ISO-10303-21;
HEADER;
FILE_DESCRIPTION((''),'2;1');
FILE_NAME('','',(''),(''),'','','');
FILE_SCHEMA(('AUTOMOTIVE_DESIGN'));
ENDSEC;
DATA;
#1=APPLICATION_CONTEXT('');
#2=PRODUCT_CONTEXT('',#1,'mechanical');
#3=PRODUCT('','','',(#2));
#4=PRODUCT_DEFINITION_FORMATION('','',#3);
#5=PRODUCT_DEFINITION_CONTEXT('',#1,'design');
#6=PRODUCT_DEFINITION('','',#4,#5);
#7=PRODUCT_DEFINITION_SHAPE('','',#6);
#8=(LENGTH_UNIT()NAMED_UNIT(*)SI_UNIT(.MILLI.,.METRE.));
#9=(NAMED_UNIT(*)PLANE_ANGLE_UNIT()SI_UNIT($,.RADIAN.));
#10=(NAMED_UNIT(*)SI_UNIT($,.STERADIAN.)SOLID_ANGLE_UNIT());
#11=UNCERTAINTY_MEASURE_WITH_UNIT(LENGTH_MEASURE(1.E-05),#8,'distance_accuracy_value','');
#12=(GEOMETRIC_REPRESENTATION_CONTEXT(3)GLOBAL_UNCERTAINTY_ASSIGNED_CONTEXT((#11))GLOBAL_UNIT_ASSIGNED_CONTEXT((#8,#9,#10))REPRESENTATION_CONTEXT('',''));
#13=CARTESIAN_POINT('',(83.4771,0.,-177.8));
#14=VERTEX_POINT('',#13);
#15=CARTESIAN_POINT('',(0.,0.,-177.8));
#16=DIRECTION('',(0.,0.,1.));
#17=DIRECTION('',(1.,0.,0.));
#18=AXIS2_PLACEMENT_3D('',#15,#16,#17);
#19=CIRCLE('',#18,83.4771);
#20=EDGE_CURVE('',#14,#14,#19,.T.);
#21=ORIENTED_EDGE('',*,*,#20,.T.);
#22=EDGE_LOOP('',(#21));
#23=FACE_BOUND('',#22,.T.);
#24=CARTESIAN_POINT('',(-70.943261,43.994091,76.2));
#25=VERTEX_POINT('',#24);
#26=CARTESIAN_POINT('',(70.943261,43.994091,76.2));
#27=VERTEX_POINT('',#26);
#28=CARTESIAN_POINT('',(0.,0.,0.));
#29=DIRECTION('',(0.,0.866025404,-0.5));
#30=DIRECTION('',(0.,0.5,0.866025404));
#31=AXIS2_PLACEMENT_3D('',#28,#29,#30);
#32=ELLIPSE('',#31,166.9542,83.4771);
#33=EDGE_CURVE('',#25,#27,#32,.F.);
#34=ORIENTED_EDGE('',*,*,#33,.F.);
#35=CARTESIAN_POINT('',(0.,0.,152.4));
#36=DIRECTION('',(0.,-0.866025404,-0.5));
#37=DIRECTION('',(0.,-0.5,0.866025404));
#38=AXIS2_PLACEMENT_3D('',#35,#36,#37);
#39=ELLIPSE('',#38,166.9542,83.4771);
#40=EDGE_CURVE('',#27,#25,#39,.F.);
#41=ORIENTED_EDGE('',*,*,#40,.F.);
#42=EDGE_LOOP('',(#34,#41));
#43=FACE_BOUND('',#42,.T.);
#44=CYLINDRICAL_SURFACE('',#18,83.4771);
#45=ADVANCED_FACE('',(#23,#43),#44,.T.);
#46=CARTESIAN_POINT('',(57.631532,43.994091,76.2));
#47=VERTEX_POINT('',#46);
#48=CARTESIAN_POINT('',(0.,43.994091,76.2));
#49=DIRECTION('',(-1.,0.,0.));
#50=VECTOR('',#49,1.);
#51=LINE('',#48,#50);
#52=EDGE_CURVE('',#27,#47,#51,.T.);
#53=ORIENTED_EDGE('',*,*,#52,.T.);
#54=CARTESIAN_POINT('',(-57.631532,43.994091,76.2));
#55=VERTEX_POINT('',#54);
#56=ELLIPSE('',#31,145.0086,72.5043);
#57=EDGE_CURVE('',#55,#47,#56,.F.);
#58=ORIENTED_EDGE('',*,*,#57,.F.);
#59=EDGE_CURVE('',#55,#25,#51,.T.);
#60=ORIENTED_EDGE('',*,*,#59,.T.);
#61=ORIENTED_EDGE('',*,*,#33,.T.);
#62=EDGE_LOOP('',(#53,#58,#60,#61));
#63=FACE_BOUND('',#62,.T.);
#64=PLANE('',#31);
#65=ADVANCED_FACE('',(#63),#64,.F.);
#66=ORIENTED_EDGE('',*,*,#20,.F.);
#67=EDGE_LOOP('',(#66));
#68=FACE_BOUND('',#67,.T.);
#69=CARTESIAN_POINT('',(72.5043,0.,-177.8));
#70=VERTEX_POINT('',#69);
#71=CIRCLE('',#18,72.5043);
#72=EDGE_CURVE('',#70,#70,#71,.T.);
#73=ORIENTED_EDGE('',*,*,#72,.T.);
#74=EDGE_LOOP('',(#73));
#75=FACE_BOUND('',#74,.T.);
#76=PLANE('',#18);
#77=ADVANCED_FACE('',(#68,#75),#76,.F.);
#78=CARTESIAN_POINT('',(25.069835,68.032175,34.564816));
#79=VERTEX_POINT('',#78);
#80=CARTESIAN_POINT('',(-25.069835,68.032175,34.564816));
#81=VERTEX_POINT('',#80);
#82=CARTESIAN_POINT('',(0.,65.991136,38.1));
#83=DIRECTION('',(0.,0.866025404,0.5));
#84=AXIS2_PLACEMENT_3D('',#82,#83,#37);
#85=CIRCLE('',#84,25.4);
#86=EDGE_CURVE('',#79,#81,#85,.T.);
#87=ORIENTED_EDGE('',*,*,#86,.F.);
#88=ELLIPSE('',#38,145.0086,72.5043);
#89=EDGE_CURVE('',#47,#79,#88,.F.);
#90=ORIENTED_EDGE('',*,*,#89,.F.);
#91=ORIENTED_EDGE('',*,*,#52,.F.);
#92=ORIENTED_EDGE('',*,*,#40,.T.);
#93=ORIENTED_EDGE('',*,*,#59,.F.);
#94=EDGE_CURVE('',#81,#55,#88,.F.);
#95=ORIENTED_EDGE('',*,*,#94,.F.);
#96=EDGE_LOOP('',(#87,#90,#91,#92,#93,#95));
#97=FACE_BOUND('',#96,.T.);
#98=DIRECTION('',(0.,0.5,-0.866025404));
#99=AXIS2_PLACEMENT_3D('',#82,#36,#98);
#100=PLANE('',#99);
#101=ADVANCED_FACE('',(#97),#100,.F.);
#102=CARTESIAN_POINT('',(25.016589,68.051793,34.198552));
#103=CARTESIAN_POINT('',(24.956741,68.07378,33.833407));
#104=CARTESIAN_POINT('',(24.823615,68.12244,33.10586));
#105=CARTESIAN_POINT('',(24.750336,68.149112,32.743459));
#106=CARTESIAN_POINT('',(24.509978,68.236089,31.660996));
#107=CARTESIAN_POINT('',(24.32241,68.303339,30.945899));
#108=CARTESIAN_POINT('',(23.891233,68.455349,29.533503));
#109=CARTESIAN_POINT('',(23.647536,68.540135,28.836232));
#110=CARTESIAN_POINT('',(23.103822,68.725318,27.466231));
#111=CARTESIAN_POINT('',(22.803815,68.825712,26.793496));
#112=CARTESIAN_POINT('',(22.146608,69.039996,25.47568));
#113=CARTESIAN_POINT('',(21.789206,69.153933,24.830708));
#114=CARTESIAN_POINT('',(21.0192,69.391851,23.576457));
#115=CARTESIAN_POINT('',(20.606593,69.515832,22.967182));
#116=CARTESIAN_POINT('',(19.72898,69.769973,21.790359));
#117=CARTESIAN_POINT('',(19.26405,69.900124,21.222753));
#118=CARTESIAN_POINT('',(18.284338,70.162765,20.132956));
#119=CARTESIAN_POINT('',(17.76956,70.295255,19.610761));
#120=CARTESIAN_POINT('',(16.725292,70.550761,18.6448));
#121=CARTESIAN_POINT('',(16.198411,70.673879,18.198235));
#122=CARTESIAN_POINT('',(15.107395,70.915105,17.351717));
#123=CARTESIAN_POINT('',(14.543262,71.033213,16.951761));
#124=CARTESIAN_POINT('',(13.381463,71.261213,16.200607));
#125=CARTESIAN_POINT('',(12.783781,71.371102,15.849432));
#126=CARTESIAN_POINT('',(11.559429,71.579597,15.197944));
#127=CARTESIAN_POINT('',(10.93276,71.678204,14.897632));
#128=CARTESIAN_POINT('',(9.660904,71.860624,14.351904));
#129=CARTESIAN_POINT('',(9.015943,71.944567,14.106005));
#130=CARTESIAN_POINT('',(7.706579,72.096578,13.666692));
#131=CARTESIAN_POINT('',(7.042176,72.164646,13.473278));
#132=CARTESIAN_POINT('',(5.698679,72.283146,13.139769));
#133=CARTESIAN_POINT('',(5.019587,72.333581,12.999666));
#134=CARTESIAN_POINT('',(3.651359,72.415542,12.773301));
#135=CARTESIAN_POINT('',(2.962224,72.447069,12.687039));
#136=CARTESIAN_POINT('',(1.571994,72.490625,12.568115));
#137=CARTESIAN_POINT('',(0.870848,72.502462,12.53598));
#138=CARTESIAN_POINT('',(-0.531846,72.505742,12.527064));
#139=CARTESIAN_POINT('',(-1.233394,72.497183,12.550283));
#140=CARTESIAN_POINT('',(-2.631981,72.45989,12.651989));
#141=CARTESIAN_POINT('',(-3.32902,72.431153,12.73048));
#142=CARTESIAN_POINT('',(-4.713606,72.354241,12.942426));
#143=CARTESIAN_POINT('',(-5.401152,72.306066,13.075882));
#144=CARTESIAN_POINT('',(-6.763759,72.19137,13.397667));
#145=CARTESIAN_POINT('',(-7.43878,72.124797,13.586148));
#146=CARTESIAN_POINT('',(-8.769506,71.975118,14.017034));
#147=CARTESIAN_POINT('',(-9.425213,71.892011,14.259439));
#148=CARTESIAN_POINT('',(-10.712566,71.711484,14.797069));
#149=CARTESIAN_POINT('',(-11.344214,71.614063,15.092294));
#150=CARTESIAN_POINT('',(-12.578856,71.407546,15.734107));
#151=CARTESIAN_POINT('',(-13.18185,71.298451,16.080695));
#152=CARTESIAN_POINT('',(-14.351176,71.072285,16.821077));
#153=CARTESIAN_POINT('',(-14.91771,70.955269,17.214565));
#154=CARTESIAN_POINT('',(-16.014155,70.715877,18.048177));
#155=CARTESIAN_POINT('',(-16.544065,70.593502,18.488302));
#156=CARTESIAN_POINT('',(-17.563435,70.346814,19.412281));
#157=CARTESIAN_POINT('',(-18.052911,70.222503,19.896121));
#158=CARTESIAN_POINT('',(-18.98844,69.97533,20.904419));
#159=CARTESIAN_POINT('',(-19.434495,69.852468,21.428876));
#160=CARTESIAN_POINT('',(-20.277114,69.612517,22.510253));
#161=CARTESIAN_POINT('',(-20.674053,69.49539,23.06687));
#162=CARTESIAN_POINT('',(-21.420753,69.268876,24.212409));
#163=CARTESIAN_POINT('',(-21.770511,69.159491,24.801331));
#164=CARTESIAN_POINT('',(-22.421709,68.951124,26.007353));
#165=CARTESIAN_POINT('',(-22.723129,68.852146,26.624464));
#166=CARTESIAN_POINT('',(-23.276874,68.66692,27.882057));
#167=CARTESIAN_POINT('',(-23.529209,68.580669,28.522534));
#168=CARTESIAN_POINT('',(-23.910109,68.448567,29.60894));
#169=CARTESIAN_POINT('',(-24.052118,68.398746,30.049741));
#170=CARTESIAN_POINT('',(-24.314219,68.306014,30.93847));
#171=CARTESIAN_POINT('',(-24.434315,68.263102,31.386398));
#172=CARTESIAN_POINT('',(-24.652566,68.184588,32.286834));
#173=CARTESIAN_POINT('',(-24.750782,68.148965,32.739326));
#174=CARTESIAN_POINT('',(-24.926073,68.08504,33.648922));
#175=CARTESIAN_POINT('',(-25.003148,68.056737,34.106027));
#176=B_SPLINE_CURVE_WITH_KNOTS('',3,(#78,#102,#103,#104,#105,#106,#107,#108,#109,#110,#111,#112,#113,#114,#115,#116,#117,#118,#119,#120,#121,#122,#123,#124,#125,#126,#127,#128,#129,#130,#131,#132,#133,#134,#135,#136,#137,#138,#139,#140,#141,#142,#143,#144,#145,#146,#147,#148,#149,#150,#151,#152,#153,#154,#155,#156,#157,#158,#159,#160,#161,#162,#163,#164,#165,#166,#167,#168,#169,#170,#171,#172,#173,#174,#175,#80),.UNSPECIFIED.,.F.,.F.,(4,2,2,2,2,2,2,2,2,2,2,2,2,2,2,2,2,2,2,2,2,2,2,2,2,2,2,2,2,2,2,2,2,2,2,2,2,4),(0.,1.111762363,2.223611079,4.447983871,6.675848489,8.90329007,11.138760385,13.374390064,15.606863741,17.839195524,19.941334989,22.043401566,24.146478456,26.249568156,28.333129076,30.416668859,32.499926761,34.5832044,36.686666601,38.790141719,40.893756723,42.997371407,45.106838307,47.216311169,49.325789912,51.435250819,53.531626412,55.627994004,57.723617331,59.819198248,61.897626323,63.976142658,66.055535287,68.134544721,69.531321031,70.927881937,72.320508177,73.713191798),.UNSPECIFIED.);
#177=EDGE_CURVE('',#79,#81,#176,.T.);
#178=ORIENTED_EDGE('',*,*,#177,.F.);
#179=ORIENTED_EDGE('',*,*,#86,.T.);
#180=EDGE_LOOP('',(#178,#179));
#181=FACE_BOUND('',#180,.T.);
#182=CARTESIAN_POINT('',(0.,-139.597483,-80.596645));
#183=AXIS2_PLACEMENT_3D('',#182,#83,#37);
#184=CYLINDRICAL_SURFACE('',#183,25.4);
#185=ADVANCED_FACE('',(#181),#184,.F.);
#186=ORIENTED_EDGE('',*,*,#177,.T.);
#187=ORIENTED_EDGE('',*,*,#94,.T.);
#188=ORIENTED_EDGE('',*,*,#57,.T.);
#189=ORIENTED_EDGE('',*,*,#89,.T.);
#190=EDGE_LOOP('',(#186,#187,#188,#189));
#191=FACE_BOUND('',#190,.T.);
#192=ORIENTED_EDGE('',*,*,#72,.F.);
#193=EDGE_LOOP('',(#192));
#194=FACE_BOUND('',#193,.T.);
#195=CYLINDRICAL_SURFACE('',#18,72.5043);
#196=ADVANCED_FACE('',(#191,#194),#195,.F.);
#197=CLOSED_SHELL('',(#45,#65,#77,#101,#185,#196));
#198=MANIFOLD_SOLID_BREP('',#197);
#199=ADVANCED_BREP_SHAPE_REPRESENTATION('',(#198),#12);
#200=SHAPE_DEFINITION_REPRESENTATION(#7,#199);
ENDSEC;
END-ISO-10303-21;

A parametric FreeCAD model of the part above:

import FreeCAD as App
import Part
import Sketcher

V = App.Vector
Q = App.Units.Quantity

doc = App.newDocument("Part")
body = doc.addObject("PartDesign::Body", "Body")

sketch1 = body.newObject("Sketcher::SketchObject", "Sketch")
sketch1.AttachmentSupport = (doc.getObject("XY_Plane"), [""])
sketch1.MapMode = "FlatFace"
sketch1.addGeometry(Part.Circle(V(0, 0, 0), V(0, 0, 1), 83), False)
sketch1.addGeometry(Part.Circle(V(0, 0, 0), V(0, 0, 1), 73), False)
sketch1.addConstraint(Sketcher.Constraint("Coincident", 0, 3, -1, 1))
sketch1.addConstraint(Sketcher.Constraint("Coincident", 1, 3, -1, 1))
sketch1.addConstraint(Sketcher.Constraint("Diameter", 0, Q("6.573 in")))
sketch1.addConstraint(Sketcher.Constraint("Diameter", 1, Q("5.709 in")))
pad1 = body.newObject("PartDesign::Pad", "Pad")
pad1.Profile = sketch1
pad1.Type = "TwoLengths"
pad1.Length = Q("8 in")
pad1.Length2 = Q("7 in")

sketch2 = body.newObject("Sketcher::SketchObject", "Sketch001")
sketch2.Placement = App.Placement(V(0, 0, 0), App.Rotation(V(-1, 0, 0), V(0, 0.5, 0.866025404), V(0, 0.866025404, -0.5), "ZXY"))
sketch2.addGeometry(Part.LineSegment(V(-1016, 1016, 0), V(-1016, -1016, 0)), False)
sketch2.addGeometry(Part.LineSegment(V(-1016, -1016, 0), V(1016, -1016, 0)), False)
sketch2.addGeometry(Part.LineSegment(V(1016, -1016, 0), V(1016, 1016, 0)), False)
sketch2.addGeometry(Part.LineSegment(V(1016, 1016, 0), V(-1016, 1016, 0)), False)
sketch2.addConstraint(Sketcher.Constraint("Coincident", 0, 2, 1, 1))
sketch2.addConstraint(Sketcher.Constraint("Coincident", 1, 2, 2, 1))
sketch2.addConstraint(Sketcher.Constraint("Coincident", 2, 2, 3, 1))
sketch2.addConstraint(Sketcher.Constraint("Coincident", 3, 2, 0, 1))
sketch2.addConstraint(Sketcher.Constraint("Vertical", 0))
sketch2.addConstraint(Sketcher.Constraint("Horizontal", 1))
sketch2.addConstraint(Sketcher.Constraint("Vertical", 2))
sketch2.addConstraint(Sketcher.Constraint("Horizontal", 3))
sketch2.addConstraint(Sketcher.Constraint("Symmetric", 0, 2, 2, 2, -1, 1))
sketch2.addConstraint(Sketcher.Constraint("Equal", 3, 0))
sketch2.addConstraint(Sketcher.Constraint("DistanceX", 1, 1, 1, 2, Q("80 in")))
pocket1 = body.newObject("PartDesign::Pocket", "Pocket")
pocket1.Profile = sketch2
pocket1.Length = Q("12 in")

sketch3 = body.newObject("Sketcher::SketchObject", "Sketch002")
sketch3.Placement = App.Placement(V(0, 65.991136, 38.1), App.Rotation(V(-1, 0, 0), V(0, -0.5, 0.866025404), V(0, 0.866025404, 0.5), "ZXY"))
sketch3.addGeometry(Part.LineSegment(V(-102, 254, 0), V(-102, -254, 0)), False)
sketch3.addGeometry(Part.LineSegment(V(-102, -254, 0), V(102, -254, 0)), False)
sketch3.addGeometry(Part.LineSegment(V(102, -254, 0), V(102, 254, 0)), False)
sketch3.addGeometry(Part.LineSegment(V(102, 254, 0), V(-102, 254, 0)), False)
sketch3.addConstraint(Sketcher.Constraint("Coincident", 0, 2, 1, 1))
sketch3.addConstraint(Sketcher.Constraint("Coincident", 1, 2, 2, 1))
sketch3.addConstraint(Sketcher.Constraint("Coincident", 2, 2, 3, 1))
sketch3.addConstraint(Sketcher.Constraint("Coincident", 3, 2, 0, 1))
sketch3.addConstraint(Sketcher.Constraint("Vertical", 0))
sketch3.addConstraint(Sketcher.Constraint("Horizontal", 1))
sketch3.addConstraint(Sketcher.Constraint("Vertical", 2))
sketch3.addConstraint(Sketcher.Constraint("Horizontal", 3))
sketch3.addConstraint(Sketcher.Constraint("Symmetric", 0, 2, 2, 2, -1, 1))
sketch3.addConstraint(Sketcher.Constraint("DistanceX", 1, 1, 1, 2, Q("8 in")))
sketch3.addConstraint(Sketcher.Constraint("DistanceY", 0, 2, 0, 1, Q("20 in")))
pocket2 = body.newObject("PartDesign::Pocket", "Pocket001")
pocket2.Profile = sketch3
pocket2.Length = Q("6 in")
pocket2.Reversed = True

sketch4 = body.newObject("Sketcher::SketchObject", "Sketch003")
sketch4.Placement = App.Placement(V(0, 65.991136, 38.1), App.Rotation(V(1, 0, 0), V(0, 0.5, -0.866025404), V(0, 0.866025404, 0.5), "ZXY"))
sketch4.addGeometry(Part.Circle(V(0, 0, 0), V(0, 0, 1), 25), False)
sketch4.addConstraint(Sketcher.Constraint("Coincident", 0, 3, -1, 1))
sketch4.addConstraint(Sketcher.Constraint("Diameter", 0, Q("2 in")))
pocket3 = body.newObject("PartDesign::Pocket", "Pocket002")
pocket3.Profile = sketch4
pocket3.Type = "ThroughAll"

doc.recompute()
